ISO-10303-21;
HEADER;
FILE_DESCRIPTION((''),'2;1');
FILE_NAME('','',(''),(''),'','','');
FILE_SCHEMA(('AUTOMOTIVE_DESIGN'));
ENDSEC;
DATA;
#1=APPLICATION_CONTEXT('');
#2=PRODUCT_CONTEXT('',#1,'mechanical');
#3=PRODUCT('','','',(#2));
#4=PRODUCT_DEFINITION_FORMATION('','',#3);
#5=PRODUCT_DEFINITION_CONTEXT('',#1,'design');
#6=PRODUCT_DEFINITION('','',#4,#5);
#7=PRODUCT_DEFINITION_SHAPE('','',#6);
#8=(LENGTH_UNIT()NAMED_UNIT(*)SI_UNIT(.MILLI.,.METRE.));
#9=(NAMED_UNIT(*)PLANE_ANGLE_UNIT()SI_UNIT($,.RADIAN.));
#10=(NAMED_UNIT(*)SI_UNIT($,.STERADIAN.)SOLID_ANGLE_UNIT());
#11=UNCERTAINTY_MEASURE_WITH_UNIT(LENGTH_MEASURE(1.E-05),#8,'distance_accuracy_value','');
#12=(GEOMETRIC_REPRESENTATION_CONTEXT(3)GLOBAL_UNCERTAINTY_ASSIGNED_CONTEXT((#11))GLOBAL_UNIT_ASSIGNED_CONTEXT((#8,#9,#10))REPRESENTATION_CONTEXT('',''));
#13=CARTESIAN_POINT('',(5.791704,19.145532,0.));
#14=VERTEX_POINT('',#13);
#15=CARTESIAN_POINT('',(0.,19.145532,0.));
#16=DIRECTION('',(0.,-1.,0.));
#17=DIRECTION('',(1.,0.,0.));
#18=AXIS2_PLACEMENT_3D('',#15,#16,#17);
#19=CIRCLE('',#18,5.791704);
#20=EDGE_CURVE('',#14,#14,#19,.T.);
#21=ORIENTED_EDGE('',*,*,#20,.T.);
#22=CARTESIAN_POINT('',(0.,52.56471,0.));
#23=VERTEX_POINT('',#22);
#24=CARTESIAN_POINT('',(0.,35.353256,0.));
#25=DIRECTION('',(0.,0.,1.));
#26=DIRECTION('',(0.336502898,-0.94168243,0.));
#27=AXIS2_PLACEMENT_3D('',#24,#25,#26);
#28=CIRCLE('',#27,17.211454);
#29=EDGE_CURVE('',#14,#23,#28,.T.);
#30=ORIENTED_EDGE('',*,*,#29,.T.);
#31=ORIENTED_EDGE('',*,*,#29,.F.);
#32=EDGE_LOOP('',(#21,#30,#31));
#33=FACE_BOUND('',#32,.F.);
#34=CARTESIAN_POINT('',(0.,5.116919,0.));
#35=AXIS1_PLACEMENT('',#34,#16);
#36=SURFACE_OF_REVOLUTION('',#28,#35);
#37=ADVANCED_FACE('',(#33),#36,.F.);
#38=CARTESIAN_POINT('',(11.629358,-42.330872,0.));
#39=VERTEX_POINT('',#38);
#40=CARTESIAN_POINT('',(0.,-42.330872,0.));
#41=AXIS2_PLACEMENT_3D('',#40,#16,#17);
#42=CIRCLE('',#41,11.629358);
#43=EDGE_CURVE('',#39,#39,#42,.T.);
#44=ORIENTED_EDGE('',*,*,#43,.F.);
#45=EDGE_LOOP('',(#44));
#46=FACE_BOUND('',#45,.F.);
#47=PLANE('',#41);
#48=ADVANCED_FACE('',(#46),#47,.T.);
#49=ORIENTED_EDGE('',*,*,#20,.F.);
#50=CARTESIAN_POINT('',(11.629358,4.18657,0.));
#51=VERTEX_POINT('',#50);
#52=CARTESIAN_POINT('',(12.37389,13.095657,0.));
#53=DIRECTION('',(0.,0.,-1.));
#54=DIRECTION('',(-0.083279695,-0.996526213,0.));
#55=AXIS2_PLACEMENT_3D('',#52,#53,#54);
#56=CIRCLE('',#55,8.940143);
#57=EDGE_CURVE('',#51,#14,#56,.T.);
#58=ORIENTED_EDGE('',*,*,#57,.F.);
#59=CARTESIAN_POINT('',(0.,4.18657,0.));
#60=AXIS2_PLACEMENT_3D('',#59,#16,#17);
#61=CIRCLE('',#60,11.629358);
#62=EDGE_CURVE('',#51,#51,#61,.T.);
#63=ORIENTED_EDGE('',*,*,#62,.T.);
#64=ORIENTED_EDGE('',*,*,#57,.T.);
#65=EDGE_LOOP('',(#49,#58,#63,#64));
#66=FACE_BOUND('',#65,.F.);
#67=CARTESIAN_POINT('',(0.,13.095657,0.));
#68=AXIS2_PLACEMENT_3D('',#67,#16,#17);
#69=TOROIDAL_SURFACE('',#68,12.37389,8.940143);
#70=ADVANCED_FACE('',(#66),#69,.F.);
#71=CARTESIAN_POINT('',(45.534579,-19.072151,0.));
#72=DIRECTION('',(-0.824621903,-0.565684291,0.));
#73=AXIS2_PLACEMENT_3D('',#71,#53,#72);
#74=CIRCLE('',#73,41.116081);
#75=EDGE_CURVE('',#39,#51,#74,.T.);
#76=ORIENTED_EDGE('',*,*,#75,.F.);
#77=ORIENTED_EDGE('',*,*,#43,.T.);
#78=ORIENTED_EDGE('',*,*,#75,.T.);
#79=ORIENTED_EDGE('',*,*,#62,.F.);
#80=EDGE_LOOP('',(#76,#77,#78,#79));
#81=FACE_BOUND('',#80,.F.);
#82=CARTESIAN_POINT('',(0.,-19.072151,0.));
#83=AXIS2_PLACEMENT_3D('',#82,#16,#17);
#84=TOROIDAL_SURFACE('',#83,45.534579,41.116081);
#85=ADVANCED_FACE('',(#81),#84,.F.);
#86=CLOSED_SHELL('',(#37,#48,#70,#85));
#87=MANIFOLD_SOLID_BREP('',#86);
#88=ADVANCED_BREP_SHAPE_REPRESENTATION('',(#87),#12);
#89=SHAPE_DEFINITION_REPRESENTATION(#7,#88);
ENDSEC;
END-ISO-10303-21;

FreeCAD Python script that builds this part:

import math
import FreeCAD as App
import Part
import Sketcher
from FreeCAD import Vector

doc = App.newDocument("Part")
body = doc.addObject("PartDesign::Body", "Body")

# Sketch on XY plane
sketch1 = body.newObject("Sketcher::SketchObject", "Sketch")
sketch1.AttachmentSupport = (doc.getObject("XY_Plane"), [""])
sketch1.MapMode = "FlatFace"
sketch1.addGeometry([
    Part.ArcOfCircle(Part.Circle(Vector(0, 35.353256, 0), Vector(0, 0, 1), 17.211454), math.radians(-70.336046), math.radians(89.999999)),  # 0
    Part.LineSegment(Vector(0, 52.56471, 0), Vector(0, -42.330872, 0)),  # 1
    Part.LineSegment(Vector(0, -42.330872, 0), Vector(11.629358, -42.330872, 0)),  # 2
    Part.ArcOfCircle(Part.Circle(Vector(45.534579, -19.072151, 0), Vector(0, 0, 1), 41.116081), math.radians(145.550177), math.radians(214.449823)),  # 3
    Part.ArcOfCircle(Part.Circle(Vector(12.37389, 13.095657, 0), Vector(0, 0, 1), 8.940143), math.radians(137.413001), math.radians(265.222892)),  # 4
], False)
sketch1.addConstraint([
    Sketcher.Constraint("Coincident", 0, 2, 1, 1),
    Sketcher.Constraint("Coincident", 1, 2, 2, 1),
    Sketcher.Constraint("Coincident", 2, 2, 3, 2),
    Sketcher.Constraint("Coincident", 3, 1, 4, 2),
    Sketcher.Constraint("Coincident", 4, 1, 0, 1),
    Sketcher.Constraint("Vertical", 1),
    Sketcher.Constraint("Horizontal", 2),
    Sketcher.Constraint("PointOnObject", 0, 3, -2),
    Sketcher.Constraint("PointOnObject", 0, 2, -2),
    Sketcher.Constraint("Vertical", 2, 2, 3, 1),
    Sketcher.Constraint("Radius", 3, 41.116081),
    Sketcher.Constraint("Radius", 0, 17.211454),
    Sketcher.Constraint("Radius", 4, 8.940143),
    Sketcher.Constraint("DistanceY", 1, 2, 1, 1, 94.895582),
    Sketcher.Constraint("DistanceY", 4, 3, 0, 3, 22.257599),
    Sketcher.Constraint("DistanceX", 2, 1, 2, 2, 11.629358),
    Sketcher.Constraint("DistanceX", -1, 1, 3, 3, 45.534579),
    Sketcher.Constraint("DistanceY", 3, 3, -1, 1, 19.072151),
])
revolution = body.newObject("PartDesign::Revolution", "Revolution")
revolution.Profile = sketch1
revolution.ReferenceAxis = (sketch1, ["V_Axis"])
revolution.Angle = 360

doc.recompute()
